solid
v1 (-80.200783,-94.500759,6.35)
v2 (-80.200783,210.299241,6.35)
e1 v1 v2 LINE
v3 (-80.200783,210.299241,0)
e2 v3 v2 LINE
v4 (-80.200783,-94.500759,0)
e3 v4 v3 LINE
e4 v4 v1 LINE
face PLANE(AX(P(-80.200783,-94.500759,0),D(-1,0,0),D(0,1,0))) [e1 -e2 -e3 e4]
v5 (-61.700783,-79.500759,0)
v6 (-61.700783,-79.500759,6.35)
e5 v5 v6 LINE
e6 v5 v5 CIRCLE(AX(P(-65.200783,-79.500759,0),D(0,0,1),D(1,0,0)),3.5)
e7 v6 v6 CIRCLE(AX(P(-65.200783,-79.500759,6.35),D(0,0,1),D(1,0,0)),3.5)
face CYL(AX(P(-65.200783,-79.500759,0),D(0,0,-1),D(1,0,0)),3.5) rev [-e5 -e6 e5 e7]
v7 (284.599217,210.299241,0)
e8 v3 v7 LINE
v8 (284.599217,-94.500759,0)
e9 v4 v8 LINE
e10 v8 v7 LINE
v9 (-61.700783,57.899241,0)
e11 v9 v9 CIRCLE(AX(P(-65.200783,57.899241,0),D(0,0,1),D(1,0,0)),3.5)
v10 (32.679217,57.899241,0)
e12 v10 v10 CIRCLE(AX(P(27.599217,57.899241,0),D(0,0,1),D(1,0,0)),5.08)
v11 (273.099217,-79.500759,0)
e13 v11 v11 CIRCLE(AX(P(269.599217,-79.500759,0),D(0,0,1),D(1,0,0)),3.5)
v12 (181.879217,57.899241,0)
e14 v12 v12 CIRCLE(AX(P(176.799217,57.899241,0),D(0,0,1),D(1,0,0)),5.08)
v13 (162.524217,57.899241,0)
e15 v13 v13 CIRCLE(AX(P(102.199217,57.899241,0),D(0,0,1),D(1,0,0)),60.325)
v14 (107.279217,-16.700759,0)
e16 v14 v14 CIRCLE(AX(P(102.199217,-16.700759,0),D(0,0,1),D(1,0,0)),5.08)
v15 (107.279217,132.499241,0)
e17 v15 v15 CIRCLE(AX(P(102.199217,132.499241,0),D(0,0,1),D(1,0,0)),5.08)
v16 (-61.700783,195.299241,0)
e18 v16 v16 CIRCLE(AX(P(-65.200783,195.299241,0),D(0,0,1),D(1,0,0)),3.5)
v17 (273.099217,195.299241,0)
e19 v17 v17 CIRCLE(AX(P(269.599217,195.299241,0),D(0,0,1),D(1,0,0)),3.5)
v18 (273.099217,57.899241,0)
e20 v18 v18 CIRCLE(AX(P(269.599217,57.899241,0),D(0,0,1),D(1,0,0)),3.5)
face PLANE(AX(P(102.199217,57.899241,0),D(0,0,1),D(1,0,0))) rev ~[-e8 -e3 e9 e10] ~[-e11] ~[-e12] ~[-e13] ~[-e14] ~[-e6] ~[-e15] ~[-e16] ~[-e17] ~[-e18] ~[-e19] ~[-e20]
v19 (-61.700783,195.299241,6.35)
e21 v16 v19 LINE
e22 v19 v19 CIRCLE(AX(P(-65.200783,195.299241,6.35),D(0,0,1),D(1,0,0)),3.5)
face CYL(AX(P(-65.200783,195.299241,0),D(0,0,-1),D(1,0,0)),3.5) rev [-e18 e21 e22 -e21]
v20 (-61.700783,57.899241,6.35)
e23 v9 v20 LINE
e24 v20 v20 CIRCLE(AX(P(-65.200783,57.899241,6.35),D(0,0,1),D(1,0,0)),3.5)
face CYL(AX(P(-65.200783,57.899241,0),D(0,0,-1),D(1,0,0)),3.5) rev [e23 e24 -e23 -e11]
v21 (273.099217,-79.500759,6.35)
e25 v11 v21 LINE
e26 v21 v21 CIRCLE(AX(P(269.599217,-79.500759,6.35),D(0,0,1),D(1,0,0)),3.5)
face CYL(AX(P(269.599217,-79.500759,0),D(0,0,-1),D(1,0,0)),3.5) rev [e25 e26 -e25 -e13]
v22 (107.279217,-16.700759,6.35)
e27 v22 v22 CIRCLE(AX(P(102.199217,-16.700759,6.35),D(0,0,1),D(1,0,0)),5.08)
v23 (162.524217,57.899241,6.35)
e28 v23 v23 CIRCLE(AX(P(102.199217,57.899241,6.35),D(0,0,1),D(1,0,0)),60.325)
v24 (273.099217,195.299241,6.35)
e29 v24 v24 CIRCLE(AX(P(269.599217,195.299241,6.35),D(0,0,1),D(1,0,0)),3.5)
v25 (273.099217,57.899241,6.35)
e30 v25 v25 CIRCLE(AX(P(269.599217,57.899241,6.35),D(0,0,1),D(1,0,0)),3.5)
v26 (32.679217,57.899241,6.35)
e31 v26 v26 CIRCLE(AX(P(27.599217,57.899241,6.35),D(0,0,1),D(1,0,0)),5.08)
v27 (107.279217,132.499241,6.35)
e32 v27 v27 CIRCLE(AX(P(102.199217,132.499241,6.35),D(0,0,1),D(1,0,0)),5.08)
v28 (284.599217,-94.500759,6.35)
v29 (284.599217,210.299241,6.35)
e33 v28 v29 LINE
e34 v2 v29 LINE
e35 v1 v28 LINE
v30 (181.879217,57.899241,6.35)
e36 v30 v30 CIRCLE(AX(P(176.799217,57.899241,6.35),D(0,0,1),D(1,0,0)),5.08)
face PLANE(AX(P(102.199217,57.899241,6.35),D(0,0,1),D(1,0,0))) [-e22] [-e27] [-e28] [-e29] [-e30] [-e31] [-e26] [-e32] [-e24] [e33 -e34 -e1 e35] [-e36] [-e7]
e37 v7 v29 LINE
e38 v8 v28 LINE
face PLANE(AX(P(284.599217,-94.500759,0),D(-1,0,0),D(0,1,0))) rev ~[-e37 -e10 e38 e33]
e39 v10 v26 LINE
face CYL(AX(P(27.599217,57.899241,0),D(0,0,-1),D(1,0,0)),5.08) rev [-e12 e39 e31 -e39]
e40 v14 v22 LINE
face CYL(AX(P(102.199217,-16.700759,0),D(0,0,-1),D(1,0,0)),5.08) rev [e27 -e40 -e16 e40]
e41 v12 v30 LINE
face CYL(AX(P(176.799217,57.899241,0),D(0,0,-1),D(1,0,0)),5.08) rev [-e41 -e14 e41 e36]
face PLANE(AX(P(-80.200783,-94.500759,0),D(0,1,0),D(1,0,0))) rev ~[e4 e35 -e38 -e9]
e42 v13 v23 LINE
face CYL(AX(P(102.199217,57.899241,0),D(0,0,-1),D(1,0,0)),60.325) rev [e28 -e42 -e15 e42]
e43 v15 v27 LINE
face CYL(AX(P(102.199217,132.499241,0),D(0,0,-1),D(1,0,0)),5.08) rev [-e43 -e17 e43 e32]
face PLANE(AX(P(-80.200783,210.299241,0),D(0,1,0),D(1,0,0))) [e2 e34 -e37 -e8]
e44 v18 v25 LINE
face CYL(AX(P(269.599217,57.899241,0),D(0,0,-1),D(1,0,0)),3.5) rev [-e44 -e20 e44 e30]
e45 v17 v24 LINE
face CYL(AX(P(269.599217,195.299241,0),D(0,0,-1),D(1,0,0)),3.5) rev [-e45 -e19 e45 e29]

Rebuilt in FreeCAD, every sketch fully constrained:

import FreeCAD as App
import Part
import Sketcher
from FreeCAD import Vector
Q = App.Units.Quantity

doc = App.newDocument("Part")
body = doc.addObject("PartDesign::Body", "Body")

sketch1 = body.newObject("Sketcher::SketchObject", "Sketch")
sketch1.AttachmentSupport = (doc.getObject("XY_Plane"), [""])
sketch1.MapMode = "FlatFace"
sketch1.addGeometry([
    Part.LineSegment(Vector(-80.2, 210.3, 0), Vector(-80.2, -94.5, 0)),
    Part.LineSegment(Vector(-80.2, -94.5, 0), Vector(284.6, -94.5, 0)),
    Part.LineSegment(Vector(284.6, -94.5, 0), Vector(284.6, 210.3, 0)),
    Part.LineSegment(Vector(284.6, 210.3, 0), Vector(-80.2, 210.3, 0)),
    Part.Circle(Vector(-65.2, -79.5, 0), Vector(0, 0, 1), 3.5),
    Part.Circle(Vector(102.2, -16.7, 0), Vector(0, 0, 1), 5.1),
    Part.Circle(Vector(269.6, -79.5, 0), Vector(0, 0, 1), 3.5),
    Part.Circle(Vector(-65.2, 57.9, 0), Vector(0, 0, 1), 3.5),
    Part.Circle(Vector(27.6, 57.9, 0), Vector(0, 0, 1), 5.1),
    Part.Circle(Vector(-65.2, 195.3, 0), Vector(0, 0, 1), 3.5),
    Part.Circle(Vector(102.2, 57.9, 0), Vector(0, 0, 1), 60.3),
    Part.Circle(Vector(176.8, 57.9, 0), Vector(0, 0, 1), 5.1),
    Part.Circle(Vector(269.6, 57.9, 0), Vector(0, 0, 1), 3.5),
    Part.Circle(Vector(102.2, 132.5, 0), Vector(0, 0, 1), 5.1),
    Part.Circle(Vector(269.6, 195.3, 0), Vector(0, 0, 1), 3.5),
], False)
sketch1.addConstraint([
    Sketcher.Constraint("Coincident", 0, 2, 1, 1),
    Sketcher.Constraint("Coincident", 1, 2, 2, 1),
    Sketcher.Constraint("Coincident", 2, 2, 3, 1),
    Sketcher.Constraint("Coincident", 3, 2, 0, 1),
    Sketcher.Constraint("Vertical", 0),
    Sketcher.Constraint("Horizontal", 1),
    Sketcher.Constraint("Vertical", 2),
    Sketcher.Constraint("Horizontal", 3),
    Sketcher.Constraint("Equal", 4, 6),
    Sketcher.Constraint("Equal", 6, 7),
    Sketcher.Constraint("Equal", 5, 8),
    Sketcher.Constraint("Equal", 7, 9),
    Sketcher.Constraint("Equal", 8, 11),
    Sketcher.Constraint("Equal", 9, 12),
    Sketcher.Constraint("Equal", 11, 13),
    Sketcher.Constraint("Equal", 12, 14),
    Sketcher.Constraint("Horizontal", 4, 3, 6, 3),
    Sketcher.Constraint("Horizontal", 7, 3, 8, 3),
    Sketcher.Constraint("Horizontal", 8, 3, 10, 3),
    Sketcher.Constraint("Horizontal", 10, 3, 11, 3),
    Sketcher.Constraint("Horizontal", 11, 3, 12, 3),
    Sketcher.Constraint("Horizontal", 9, 3, 14, 3),
    Sketcher.Constraint("Vertical", 4, 3, 7, 3),
    Sketcher.Constraint("Vertical", 7, 3, 9, 3),
    Sketcher.Constraint("Vertical", 5, 3, 10, 3),
    Sketcher.Constraint("Vertical", 6, 3, 12, 3),
    Sketcher.Constraint("Vertical", 10, 3, 13, 3),
    Sketcher.Constraint("Vertical", 12, 3, 14, 3),
    Sketcher.Constraint("Diameter", 5, Q("0.4 in")),
    Sketcher.Constraint("Diameter", 10, Q("4.75 in")),
    Sketcher.Constraint("DistanceY", 0, 2, 0, 1, Q("12 in")),
    Sketcher.Constraint("DistanceY", 0, 2, 7, 3, Q("6 in")),
    Sketcher.Constraint("Diameter", 4, 7.0),
    Sketcher.Constraint("DistanceX", 1, 1, 1, 2, 364.8),
    Sketcher.Constraint("DistanceX", 4, 3, 5, 3, 167.4),
    Sketcher.Constraint("DistanceY", 4, 3, 5, 3, 62.8),
    Sketcher.Constraint("DistanceX", 5, 3, 6, 3, 167.4),
    Sketcher.Constraint("DistanceY", 4, 3, 7, 3, 137.4),
    Sketcher.Constraint("DistanceX", 7, 3, 8, 3, 92.8),
    Sketcher.Constraint("DistanceY", 7, 3, 9, 3, 137.4),
    Sketcher.Constraint("DistanceX", 10, 3, 11, 3, 74.6),
    Sketcher.Constraint("DistanceY", 10, 3, 13, 3, 74.6),
    Sketcher.Constraint("DistanceX", 0, 2, 4, 3, 15.0),
    Sketcher.Constraint("DistanceY", 4, 3, -1, 1, 79.500759),
    Sketcher.Constraint("DistanceX", 4, 3, -1, 1, 65.200783),
])
pad1 = body.newObject("PartDesign::Pad", "Pad")
pad1.Profile = sketch1
pad1.Length = Q("0.25 in")

doc.recompute()
